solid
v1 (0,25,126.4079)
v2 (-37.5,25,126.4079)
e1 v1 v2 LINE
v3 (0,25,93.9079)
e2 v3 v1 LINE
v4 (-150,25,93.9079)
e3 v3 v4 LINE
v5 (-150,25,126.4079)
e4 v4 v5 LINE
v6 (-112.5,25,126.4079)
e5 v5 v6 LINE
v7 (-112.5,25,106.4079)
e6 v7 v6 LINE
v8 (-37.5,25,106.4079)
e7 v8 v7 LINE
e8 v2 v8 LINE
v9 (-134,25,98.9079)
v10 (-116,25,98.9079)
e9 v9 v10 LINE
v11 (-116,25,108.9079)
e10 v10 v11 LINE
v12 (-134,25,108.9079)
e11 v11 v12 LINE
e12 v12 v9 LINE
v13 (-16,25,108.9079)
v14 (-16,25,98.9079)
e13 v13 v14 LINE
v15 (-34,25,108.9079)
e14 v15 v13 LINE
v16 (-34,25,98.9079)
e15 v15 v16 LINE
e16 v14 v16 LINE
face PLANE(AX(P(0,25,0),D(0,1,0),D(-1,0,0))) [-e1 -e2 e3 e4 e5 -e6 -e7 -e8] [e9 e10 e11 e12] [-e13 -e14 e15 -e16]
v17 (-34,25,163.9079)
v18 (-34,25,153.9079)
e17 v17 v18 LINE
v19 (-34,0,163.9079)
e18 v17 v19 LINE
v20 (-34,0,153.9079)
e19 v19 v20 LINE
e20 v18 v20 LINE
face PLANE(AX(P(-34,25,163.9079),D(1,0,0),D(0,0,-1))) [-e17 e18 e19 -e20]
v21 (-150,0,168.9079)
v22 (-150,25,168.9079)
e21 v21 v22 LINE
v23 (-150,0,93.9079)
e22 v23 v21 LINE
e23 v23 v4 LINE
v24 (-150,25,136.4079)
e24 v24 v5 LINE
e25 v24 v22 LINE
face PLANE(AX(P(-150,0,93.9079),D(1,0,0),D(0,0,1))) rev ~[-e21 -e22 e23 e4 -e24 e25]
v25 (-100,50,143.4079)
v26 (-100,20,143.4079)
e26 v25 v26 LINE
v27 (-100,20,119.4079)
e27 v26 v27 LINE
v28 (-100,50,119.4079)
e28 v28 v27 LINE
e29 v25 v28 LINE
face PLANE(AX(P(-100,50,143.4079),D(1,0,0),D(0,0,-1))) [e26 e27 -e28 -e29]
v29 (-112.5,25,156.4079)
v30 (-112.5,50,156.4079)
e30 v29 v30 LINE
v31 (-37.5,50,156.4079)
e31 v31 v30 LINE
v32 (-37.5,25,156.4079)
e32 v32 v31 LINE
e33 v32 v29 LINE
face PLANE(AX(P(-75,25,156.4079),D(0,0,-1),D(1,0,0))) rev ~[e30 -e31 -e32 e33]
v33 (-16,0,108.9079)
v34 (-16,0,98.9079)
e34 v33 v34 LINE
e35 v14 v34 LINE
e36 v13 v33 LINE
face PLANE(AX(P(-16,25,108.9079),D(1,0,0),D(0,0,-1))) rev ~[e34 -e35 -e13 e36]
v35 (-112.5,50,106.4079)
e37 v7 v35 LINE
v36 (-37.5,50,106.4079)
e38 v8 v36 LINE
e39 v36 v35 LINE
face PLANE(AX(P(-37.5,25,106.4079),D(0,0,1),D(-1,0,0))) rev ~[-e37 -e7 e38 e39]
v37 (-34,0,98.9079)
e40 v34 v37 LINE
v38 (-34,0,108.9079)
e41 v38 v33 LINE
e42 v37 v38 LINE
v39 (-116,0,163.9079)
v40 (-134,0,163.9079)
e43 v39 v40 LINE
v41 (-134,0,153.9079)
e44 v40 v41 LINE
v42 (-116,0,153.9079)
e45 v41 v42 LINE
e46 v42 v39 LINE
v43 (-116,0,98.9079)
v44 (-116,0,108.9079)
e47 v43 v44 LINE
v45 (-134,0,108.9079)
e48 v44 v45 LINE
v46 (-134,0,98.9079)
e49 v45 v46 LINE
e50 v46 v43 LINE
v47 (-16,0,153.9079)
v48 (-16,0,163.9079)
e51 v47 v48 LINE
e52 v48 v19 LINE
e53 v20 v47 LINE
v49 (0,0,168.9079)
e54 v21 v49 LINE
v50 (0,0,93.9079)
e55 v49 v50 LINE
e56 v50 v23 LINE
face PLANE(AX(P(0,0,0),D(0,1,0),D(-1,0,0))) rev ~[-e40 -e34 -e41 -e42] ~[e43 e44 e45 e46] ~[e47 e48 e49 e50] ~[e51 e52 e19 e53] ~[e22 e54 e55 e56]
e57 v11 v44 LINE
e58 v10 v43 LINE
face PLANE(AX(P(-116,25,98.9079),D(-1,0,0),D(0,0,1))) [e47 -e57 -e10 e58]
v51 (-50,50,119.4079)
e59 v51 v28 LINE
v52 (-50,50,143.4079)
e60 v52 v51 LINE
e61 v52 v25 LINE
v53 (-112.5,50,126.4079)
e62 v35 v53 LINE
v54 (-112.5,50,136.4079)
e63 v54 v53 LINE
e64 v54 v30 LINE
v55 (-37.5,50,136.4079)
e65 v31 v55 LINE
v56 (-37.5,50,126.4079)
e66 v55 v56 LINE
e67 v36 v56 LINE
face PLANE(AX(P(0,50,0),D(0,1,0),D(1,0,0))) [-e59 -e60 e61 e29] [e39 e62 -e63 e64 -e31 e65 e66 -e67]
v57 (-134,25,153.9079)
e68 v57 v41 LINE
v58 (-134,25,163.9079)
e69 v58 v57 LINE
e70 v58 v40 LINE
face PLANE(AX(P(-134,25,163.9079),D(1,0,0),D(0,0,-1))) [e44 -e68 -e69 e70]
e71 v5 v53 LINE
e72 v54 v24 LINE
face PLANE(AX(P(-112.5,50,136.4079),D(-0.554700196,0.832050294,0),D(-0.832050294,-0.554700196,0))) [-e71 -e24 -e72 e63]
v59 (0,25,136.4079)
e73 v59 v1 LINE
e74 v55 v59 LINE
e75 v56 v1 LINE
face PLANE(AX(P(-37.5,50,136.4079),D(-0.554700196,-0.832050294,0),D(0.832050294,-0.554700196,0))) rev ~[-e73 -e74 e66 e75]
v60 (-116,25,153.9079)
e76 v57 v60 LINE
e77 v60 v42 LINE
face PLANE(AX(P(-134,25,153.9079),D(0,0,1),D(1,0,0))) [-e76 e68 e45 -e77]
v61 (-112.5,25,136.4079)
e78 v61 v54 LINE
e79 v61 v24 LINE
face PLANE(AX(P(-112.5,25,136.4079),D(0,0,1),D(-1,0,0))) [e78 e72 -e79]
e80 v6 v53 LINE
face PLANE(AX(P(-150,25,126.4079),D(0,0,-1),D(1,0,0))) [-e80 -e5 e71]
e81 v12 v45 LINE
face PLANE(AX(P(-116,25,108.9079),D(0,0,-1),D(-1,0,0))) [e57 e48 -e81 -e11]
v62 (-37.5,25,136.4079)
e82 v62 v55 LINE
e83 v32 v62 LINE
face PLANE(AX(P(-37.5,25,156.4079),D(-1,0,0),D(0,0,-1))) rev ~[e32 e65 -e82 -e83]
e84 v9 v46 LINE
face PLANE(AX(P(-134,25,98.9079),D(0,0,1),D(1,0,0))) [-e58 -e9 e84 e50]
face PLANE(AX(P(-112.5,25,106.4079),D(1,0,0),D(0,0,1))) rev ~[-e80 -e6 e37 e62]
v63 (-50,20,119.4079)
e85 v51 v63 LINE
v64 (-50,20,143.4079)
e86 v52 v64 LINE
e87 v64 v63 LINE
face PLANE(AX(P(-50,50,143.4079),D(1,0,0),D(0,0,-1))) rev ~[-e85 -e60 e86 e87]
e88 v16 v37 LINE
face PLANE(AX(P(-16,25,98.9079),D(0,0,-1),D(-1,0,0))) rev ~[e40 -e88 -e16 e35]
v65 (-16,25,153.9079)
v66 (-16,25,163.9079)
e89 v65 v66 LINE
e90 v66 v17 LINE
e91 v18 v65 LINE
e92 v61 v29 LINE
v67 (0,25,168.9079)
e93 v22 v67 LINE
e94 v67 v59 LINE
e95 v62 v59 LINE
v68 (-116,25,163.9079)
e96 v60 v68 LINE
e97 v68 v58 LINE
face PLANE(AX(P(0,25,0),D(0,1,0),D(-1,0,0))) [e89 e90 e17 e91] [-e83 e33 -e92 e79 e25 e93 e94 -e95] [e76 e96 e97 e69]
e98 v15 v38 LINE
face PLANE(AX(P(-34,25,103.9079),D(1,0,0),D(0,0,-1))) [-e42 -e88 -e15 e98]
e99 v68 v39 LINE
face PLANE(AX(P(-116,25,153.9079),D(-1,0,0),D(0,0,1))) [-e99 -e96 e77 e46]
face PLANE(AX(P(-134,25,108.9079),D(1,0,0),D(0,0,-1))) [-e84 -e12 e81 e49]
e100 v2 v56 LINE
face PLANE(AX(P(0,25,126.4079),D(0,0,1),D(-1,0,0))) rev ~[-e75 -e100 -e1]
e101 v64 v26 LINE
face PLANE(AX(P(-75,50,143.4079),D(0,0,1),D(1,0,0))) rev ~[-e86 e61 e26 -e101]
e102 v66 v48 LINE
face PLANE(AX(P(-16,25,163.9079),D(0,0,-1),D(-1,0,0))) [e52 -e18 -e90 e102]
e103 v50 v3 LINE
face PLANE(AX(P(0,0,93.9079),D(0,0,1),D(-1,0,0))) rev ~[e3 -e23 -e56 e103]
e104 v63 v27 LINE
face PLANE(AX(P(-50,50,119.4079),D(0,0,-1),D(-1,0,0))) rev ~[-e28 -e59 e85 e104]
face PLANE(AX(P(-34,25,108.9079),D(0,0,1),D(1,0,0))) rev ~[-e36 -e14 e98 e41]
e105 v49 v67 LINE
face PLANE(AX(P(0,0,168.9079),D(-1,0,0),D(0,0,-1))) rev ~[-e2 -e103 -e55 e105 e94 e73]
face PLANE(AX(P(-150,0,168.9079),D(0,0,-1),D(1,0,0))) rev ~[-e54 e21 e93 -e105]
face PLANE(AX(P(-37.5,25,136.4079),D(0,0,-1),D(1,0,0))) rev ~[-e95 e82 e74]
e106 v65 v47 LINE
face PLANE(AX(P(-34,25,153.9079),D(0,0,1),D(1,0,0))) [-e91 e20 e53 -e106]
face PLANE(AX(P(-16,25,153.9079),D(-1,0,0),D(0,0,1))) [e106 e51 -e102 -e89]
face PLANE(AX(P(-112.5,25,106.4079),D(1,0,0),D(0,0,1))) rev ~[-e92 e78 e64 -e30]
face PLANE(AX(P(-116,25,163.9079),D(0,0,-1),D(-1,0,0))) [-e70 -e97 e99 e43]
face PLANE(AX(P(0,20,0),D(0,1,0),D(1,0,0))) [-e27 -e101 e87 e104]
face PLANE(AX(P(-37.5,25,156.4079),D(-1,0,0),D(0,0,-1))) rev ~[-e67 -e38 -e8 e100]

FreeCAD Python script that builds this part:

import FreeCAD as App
import Part
import Sketcher
from FreeCAD import Vector
Q = App.Units.Quantity

doc = App.newDocument("Part")
body = doc.addObject("PartDesign::Body", "Body")

# Sketch on XZ plane
sketch1 = body.newObject("Sketcher::SketchObject", "Sketch")
sketch1.AttachmentSupport = (doc.getObject("XZ_Plane"), [""])
sketch1.MapMode = "FlatFace"
sketch1.addGeometry([
    Part.LineSegment(Vector(0, 169, 0), Vector(0, 94, 0)),
    Part.LineSegment(Vector(0, 94, 0), Vector(-150, 94, 0)),
    Part.LineSegment(Vector(-150, 94, 0), Vector(-150, 169, 0)),
    Part.LineSegment(Vector(-150, 169, 0), Vector(0, 169, 0)),
], False)
sketch1.addConstraint([
    Sketcher.Constraint("Coincident", 0, 2, 1, 1),
    Sketcher.Constraint("Coincident", 1, 2, 2, 1),
    Sketcher.Constraint("Coincident", 2, 2, 3, 1),
    Sketcher.Constraint("Coincident", 3, 2, 0, 1),
    Sketcher.Constraint("Vertical", 0),
    Sketcher.Constraint("Horizontal", 1),
    Sketcher.Constraint("Vertical", 2),
    Sketcher.Constraint("Horizontal", 3),
    Sketcher.Constraint("PointOnObject", 0, 2, -2),
    Sketcher.Constraint("DistanceX", 1, 2, 1, 1, Q("150 mm")),
    Sketcher.Constraint("DistanceY", 0, 2, 0, 1, Q("75 mm")),
    Sketcher.Constraint("DistanceY", -1, 1, 0, 2, Q("93.908 mm")),
])
pad1 = body.newObject("PartDesign::Pad", "Pad")
pad1.Profile = sketch1
pad1.Length = 25
pad1.Reversed = True

# Sketch on XZ plane
sketch2 = body.newObject("Sketcher::SketchObject", "Sketch001")
sketch2.AttachmentSupport = (doc.getObject("XZ_Plane"), [""])
sketch2.MapMode = "FlatFace"
sketch2.AttachmentOffset = App.Placement(Vector(0, 0, -25), App.Rotation())
sketch2.addGeometry([
    Part.LineSegment(Vector(-112, 156, 0), Vector(-38, 156, 0)),
    Part.LineSegment(Vector(-38, 156, 0), Vector(-38, 106, 0)),
    Part.LineSegment(Vector(-38, 106, 0), Vector(-112, 106, 0)),
    Part.LineSegment(Vector(-112, 106, 0), Vector(-112, 156, 0)),
], False)
sketch2.addConstraint([
    Sketcher.Constraint("Coincident", 0, 2, 1, 1),
    Sketcher.Constraint("Coincident", 1, 2, 2, 1),
    Sketcher.Constraint("Coincident", 2, 2, 3, 1),
    Sketcher.Constraint("Coincident", 3, 2, 0, 1),
    Sketcher.Constraint("Horizontal", 0),
    Sketcher.Constraint("Vertical", 1),
    Sketcher.Constraint("Horizontal", 2),
    Sketcher.Constraint("Vertical", 3),
    Sketcher.Constraint("DistanceX", 0, 1, 0, 2, Q("75 mm")),
    Sketcher.Constraint("DistanceY", 1, 2, 1, 1, Q("50 mm")),
    Sketcher.Constraint("DistanceX", 0, 2, -1, 1, Q("37.5 mm")),
    Sketcher.Constraint("DistanceY", -1, 1, 0, 2, Q("156.408 mm")),
])
pad2 = body.newObject("PartDesign::Pad", "Pad001")
pad2.Profile = sketch2
pad2.Length = 25
pad2.Reversed = True

# Sketch on XZ plane
sketch3 = body.newObject("Sketcher::SketchObject", "Sketch002")
sketch3.AttachmentSupport = (doc.getObject("XZ_Plane"), [""])
sketch3.MapMode = "FlatFace"
sketch3.AttachmentOffset = App.Placement(Vector(0, 0, -50), App.Rotation())
sketch3.addGeometry([
    Part.LineSegment(Vector(-100, 143, 0), Vector(-50, 143, 0)),
    Part.LineSegment(Vector(-50, 143, 0), Vector(-50, 119, 0)),
    Part.LineSegment(Vector(-50, 119, 0), Vector(-100, 119, 0)),
    Part.LineSegment(Vector(-100, 119, 0), Vector(-100, 143, 0)),
], False)
sketch3.addConstraint([
    Sketcher.Constraint("Coincident", 0, 2, 1, 1),
    Sketcher.Constraint("Coincident", 1, 2, 2, 1),
    Sketcher.Constraint("Coincident", 2, 2, 3, 1),
    Sketcher.Constraint("Coincident", 3, 2, 0, 1),
    Sketcher.Constraint("Horizontal", 0),
    Sketcher.Constraint("Vertical", 1),
    Sketcher.Constraint("Horizontal", 2),
    Sketcher.Constraint("Vertical", 3),
    Sketcher.Constraint("DistanceX", 0, 1, 0, 2, Q("50 mm")),
    Sketcher.Constraint("DistanceY", 1, 2, 1, 1, Q("24 mm")),
    Sketcher.Constraint("DistanceX", 0, 2, -1, 1, Q("50 mm")),
    Sketcher.Constraint("DistanceY", -1, 1, 0, 2, Q("143.408 mm")),
])
pocket1 = body.newObject("PartDesign::Pocket", "Pocket")
pocket1.Profile = sketch3
pocket1.Length = 30
pocket1.Reversed = True

# Sketch on XZ plane
sketch4 = body.newObject("Sketcher::SketchObject", "Sketch003")
sketch4.AttachmentSupport = (doc.getObject("XZ_Plane"), [""])
sketch4.MapMode = "FlatFace"
sketch4.AttachmentOffset = App.Placement(Vector(0, 0, -25), App.Rotation())
sketch4.addGeometry([
    Part.LineSegment(Vector(0, 126, 0), Vector(-38, 126, 0)),  # 0
    Part.LineSegment(Vector(-38, 126, 0), Vector(-38, 136, 0)),  # 1
    Part.LineSegment(Vector(-38, 136, 0), Vector(0, 136, 0)),  # 2
    Part.LineSegment(Vector(0, 136, 0), Vector(0, 126, 0)),  # 3
    Part.LineSegment(Vector(-150, 136, 0), Vector(-112, 136, 0)),  # 4
    Part.LineSegment(Vector(-112, 136, 0), Vector(-112, 126, 0)),  # 5
    Part.LineSegment(Vector(-112, 126, 0), Vector(-150, 126, 0)),  # 6
    Part.LineSegment(Vector(-150, 126, 0), Vector(-150, 136, 0)),  # 7
], False)
sketch4.addConstraint([
    Sketcher.Constraint("Coincident", 0, 2, 1, 1),
    Sketcher.Constraint("Coincident", 1, 2, 2, 1),
    Sketcher.Constraint("Coincident", 2, 2, 3, 1),
    Sketcher.Constraint("Coincident", 3, 2, 0, 1),
    Sketcher.Constraint("Coincident", 4, 2, 5, 1),
    Sketcher.Constraint("Coincident", 5, 2, 6, 1),
    Sketcher.Constraint("Coincident", 6, 2, 7, 1),
    Sketcher.Constraint("Coincident", 7, 2, 4, 1),
    Sketcher.Constraint("Horizontal", 0),
    Sketcher.Constraint("Vertical", 1),
    Sketcher.Constraint("Horizontal", 2),
    Sketcher.Constraint("Vertical", 3),
    Sketcher.Constraint("Horizontal", 4),
    Sketcher.Constraint("Vertical", 5),
    Sketcher.Constraint("Horizontal", 6),
    Sketcher.Constraint("Vertical", 7),
    Sketcher.Constraint("PointOnObject", 2, 2, -2),
    Sketcher.Constraint("Horizontal", 2, 2, 4, 2),
    Sketcher.Constraint("Horizontal", 3, 2, 5, 2),
    Sketcher.Constraint("Equal", 2, 4),
    Sketcher.Constraint("DistanceY", 1, 1, 1, 2, Q("10 mm")),
    Sketcher.Constraint("DistanceX", 0, 2, 0, 1, Q("37.5 mm")),
    Sketcher.Constraint("DistanceX", 6, 2, -1, 1, Q("150 mm")),
    Sketcher.Constraint("DistanceY", -1, 1, 0, 2, Q("126.408 mm")),
])
pad3 = body.newObject("PartDesign::Pad", "Pad002")
pad3.Profile = sketch4
pad3.Length = 25
pad3.Reversed = True

# Sketch on XY plane
sketch5 = body.newObject("Sketcher::SketchObject", "Sketch004")
sketch5.AttachmentSupport = (doc.getObject("XY_Plane"), [""])
sketch5.MapMode = "FlatFace"
sketch5.AttachmentOffset = App.Placement(Vector(0, 0, 136.4079), App.Rotation())
sketch5.addGeometry([
    Part.LineSegment(Vector(-150, 25, 0), Vector(-112, 50, 0)),
    Part.LineSegment(Vector(-112, 50, 0), Vector(-150, 50, 0)),
    Part.LineSegment(Vector(-150, 50, 0), Vector(-150, 25, 0)),
], False)
sketch5.addConstraint([
    Sketcher.Constraint("Coincident", 0, 2, 1, 1),
    Sketcher.Constraint("Coincident", 1, 2, 2, 1),
    Sketcher.Constraint("Coincident", 2, 2, 0, 1),
    Sketcher.Constraint("Horizontal", 1),
    Sketcher.Constraint("Vertical", 2),
    Sketcher.Constraint("DistanceY", 2, 2, 2, 1, Q("25 mm")),
    Sketcher.Constraint("DistanceX", 1, 2, 1, 1, Q("37.5 mm")),
    Sketcher.Constraint("DistanceY", -1, 1, 0, 2, Q("50 mm")),
    Sketcher.Constraint("DistanceX", 1, 2, -1, 1, Q("150 mm")),
])
pocket2 = body.newObject("PartDesign::Pocket", "Pocket001")
pocket2.Profile = sketch5
pocket2.Length = 25

# Sketch on XY plane
sketch6 = body.newObject("Sketcher::SketchObject", "Sketch005")
sketch6.AttachmentSupport = (doc.getObject("XY_Plane"), [""])
sketch6.MapMode = "FlatFace"
sketch6.AttachmentOffset = App.Placement(Vector(0, 0, 136.4079), App.Rotation())
sketch6.addGeometry([
    Part.LineSegment(Vector(0, 50, 0), Vector(-38, 50, 0)),
    Part.LineSegment(Vector(-38, 50, 0), Vector(0, 25, 0)),
    Part.LineSegment(Vector(0, 25, 0), Vector(0, 50, 0)),
], False)
sketch6.addConstraint([
    Sketcher.Constraint("Coincident", 0, 2, 1, 1),
    Sketcher.Constraint("Coincident", 1, 2, 2, 1),
    Sketcher.Constraint("Coincident", 2, 2, 0, 1),
    Sketcher.Constraint("Horizontal", 0),
    Sketcher.Constraint("Vertical", 2),
    Sketcher.Constraint("PointOnObject", 1, 2, -2),
    Sketcher.Constraint("DistanceY", 2, 1, 2, 2, Q("25 mm")),
    Sketcher.Constraint("DistanceX", 0, 2, 0, 1, Q("37.5 mm")),
    Sketcher.Constraint("DistanceY", -1, 1, 0, 2, Q("50 mm")),
])
pocket3 = body.newObject("PartDesign::Pocket", "Pocket002")
pocket3.Profile = sketch6
pocket3.Length = 25

# Sketch on XZ plane
sketch7 = body.newObject("Sketcher::SketchObject", "Sketch006")
sketch7.AttachmentSupport = (doc.getObject("XZ_Plane"), [""])
sketch7.MapMode = "FlatFace"
sketch7.AttachmentOffset = App.Placement(Vector(0, 0, -25), App.Rotation())
sketch7.addGeometry([
    Part.LineSegment(Vector(-34, 99, 0), Vector(-34, 109, 0)),  # 0
    Part.LineSegment(Vector(-34, 109, 0), Vector(-16, 109, 0)),  # 1
    Part.LineSegment(Vector(-16, 109, 0), Vector(-16, 99, 0)),  # 2
    Part.LineSegment(Vector(-16, 99, 0), Vector(-34, 99, 0)),  # 3
    Part.LineSegment(Vector(-116, 109, 0), Vector(-116, 99, 0)),  # 4
    Part.LineSegment(Vector(-116, 99, 0), Vector(-134, 99, 0)),  # 5
    Part.LineSegment(Vector(-134, 99, 0), Vector(-134, 109, 0)),  # 6
    Part.LineSegment(Vector(-134, 109, 0), Vector(-116, 109, 0)),  # 7
    Part.LineSegment(Vector(-116, 164, 0), Vector(-116, 154, 0)),  # 8
    Part.LineSegment(Vector(-116, 154, 0), Vector(-134, 154, 0)),  # 9
    Part.LineSegment(Vector(-134, 154, 0), Vector(-134, 164, 0)),  # 10
    Part.LineSegment(Vector(-134, 164, 0), Vector(-116, 164, 0)),  # 11
    Part.LineSegment(Vector(-16, 164, 0), Vector(-16, 154, 0)),  # 12
    Part.LineSegment(Vector(-16, 154, 0), Vector(-34, 154, 0)),  # 13
    Part.LineSegment(Vector(-34, 154, 0), Vector(-34, 164, 0)),  # 14
    Part.LineSegment(Vector(-34, 164, 0), Vector(-16, 164, 0)),  # 15
], False)
sketch7.addConstraint([
    Sketcher.Constraint("Coincident", 0, 2, 1, 1),
    Sketcher.Constraint("Coincident", 1, 2, 2, 1),
    Sketcher.Constraint("Coincident", 2, 2, 3, 1),
    Sketcher.Constraint("Coincident", 3, 2, 0, 1),
    Sketcher.Constraint("Coincident", 4, 2, 5, 1),
    Sketcher.Constraint("Coincident", 5, 2, 6, 1),
    Sketcher.Constraint("Coincident", 6, 2, 7, 1),
    Sketcher.Constraint("Coincident", 7, 2, 4, 1),
    Sketcher.Constraint("Coincident", 8, 2, 9, 1),
    Sketcher.Constraint("Coincident", 9, 2, 10, 1),
    Sketcher.Constraint("Coincident", 10, 2, 11, 1),
    Sketcher.Constraint("Coincident", 11, 2, 8, 1),
    Sketcher.Constraint("Coincident", 12, 2, 13, 1),
    Sketcher.Constraint("Coincident", 13, 2, 14, 1),
    Sketcher.Constraint("Coincident", 14, 2, 15, 1),
    Sketcher.Constraint("Coincident", 15, 2, 12, 1),
    Sketcher.Constraint("Vertical", 0),
    Sketcher.Constraint("Horizontal", 1),
    Sketcher.Constraint("Vertical", 2),
    Sketcher.Constraint("Horizontal", 3),
    Sketcher.Constraint("Vertical", 4),
    Sketcher.Constraint("Horizontal", 5),
    Sketcher.Constraint("Vertical", 6),
    Sketcher.Constraint("Horizontal", 7),
    Sketcher.Constraint("Vertical", 8),
    Sketcher.Constraint("Horizontal", 9),
    Sketcher.Constraint("Vertical", 10),
    Sketcher.Constraint("Horizontal", 11),
    Sketcher.Constraint("Vertical", 12),
    Sketcher.Constraint("Horizontal", 13),
    Sketcher.Constraint("Vertical", 14),
    Sketcher.Constraint("Horizontal", 15),
    Sketcher.Constraint("Horizontal", 3, 2, 4, 2),
    Sketcher.Constraint("Horizontal", 1, 2, 6, 2),
    Sketcher.Constraint("Horizontal", 9, 2, 12, 2),
    Sketcher.Constraint("Horizontal", 11, 2, 14, 2),
    Sketcher.Constraint("Vertical", 7, 2, 8, 2),
    Sketcher.Constraint("Vertical", 6, 2, 9, 2),
    Sketcher.Constraint("Vertical", 2, 2, 12, 2),
    Sketcher.Constraint("Vertical", 3, 2, 13, 2),
    Sketcher.Constraint("Equal", 3, 5),
    Sketcher.Constraint("Equal", 6, 8),
    Sketcher.Constraint("DistanceX", 1, 1, 1, 2, Q("18 mm")),
    Sketcher.Constraint("DistanceY", 0, 1, 0, 2, Q("10 mm")),
    Sketcher.Constraint("DistanceX", 1, 2, -1, 1, Q("16 mm")),
    Sketcher.Constraint("DistanceX", 4, 2, -1, 1, Q("116 mm")),
    Sketcher.Constraint("DistanceY", 7, 2, 8, 2, Q("45 mm")),
    Sketcher.Constraint("DistanceY", -1, 1, 0, 2, Q("108.908 mm")),
])
pocket4 = body.newObject("PartDesign::Pocket", "Pocket003")
pocket4.Profile = sketch7
pocket4.Length = 25
pocket4.Reversed = True

doc.recompute()
